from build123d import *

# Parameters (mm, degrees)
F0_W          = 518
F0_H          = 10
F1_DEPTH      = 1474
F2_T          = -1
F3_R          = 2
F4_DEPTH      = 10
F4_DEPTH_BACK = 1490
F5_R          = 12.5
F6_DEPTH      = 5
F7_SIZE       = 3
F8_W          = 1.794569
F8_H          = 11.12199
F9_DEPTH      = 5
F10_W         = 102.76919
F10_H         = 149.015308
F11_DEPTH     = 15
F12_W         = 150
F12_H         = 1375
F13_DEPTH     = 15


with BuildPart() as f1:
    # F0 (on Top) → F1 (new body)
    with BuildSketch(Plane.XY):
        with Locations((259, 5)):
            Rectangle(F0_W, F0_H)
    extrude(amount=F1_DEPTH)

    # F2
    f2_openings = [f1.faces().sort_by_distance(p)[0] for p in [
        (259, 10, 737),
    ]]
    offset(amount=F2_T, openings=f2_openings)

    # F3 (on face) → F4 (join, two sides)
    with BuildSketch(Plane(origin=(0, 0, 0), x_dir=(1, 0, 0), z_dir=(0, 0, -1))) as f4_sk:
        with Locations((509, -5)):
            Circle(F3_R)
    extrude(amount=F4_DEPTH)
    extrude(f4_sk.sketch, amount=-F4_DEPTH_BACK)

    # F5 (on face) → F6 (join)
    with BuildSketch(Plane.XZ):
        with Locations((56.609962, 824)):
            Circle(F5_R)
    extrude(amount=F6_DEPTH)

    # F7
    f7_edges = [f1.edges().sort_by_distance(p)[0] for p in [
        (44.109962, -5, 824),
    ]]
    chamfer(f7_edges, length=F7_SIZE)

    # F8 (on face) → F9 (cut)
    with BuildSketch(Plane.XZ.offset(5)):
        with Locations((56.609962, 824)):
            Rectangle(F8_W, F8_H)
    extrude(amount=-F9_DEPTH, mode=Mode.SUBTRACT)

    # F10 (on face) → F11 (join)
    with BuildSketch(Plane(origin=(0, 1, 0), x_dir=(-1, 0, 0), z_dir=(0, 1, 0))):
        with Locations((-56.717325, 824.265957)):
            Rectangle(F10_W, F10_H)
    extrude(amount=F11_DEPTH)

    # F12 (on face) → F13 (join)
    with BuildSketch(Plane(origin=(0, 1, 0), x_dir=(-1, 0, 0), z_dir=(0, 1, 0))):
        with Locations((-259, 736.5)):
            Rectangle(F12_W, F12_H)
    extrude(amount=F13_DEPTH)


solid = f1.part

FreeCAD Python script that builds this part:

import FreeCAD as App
import Part
import Sketcher
from FreeCAD import Vector


def edges_at(feature, points):
    """Names of the edges that pass closest to the given points."""
    edges = feature.Shape.Edges
    near = lambda p: min(range(len(edges)), key=lambda i: edges[i].distToShape(Part.Vertex(*p))[0])
    return sorted({f"Edge{near(p) + 1}" for p in points})


def faces_at(feature, points):
    """Names of the faces that lie closest to the given points."""
    faces = feature.Shape.Faces
    near = lambda p: min(range(len(faces)), key=lambda i: faces[i].distToShape(Part.Vertex(*p))[0])
    return sorted({f"Face{near(p) + 1}" for p in points})


def add_polygon(sketch, points):
    """Adds a closed chain of lines whose ends are joined by coincident constraints."""
    first, n = sketch.GeometryCount, len(points)
    for a, b in zip(points, points[1:] + points[:1]):
        sketch.addGeometry(Part.LineSegment(App.Vector(*a, 0), App.Vector(*b, 0)), False)
    for i in range(n):
        sketch.addConstraint(Sketcher.Constraint("Coincident", first + i, 2, first + (i + 1) % n, 1))

doc = App.newDocument("Part")
params = doc.addObject("Spreadsheet::Sheet", "Params")
for row, (alias, value) in enumerate([
    ("sketch1_width", "518 mm"),
    ("sketch1_height", "10 mm"),
    ("pad1_length", "1474 mm"),
    ("thickness_wall", "1 mm"),
    ("sketch2_diameter", "4 mm"),
    ("pad2_length", "10 mm"),
    ("pad2_length2", "1490 mm"),
    ("sketch3_diameter", "25 mm"),
    ("pad3_length", "5 mm"),
    ("chamfer_size", "3 mm"),
    ("pocket1_length", "5 mm"),
    ("pad4_length", "15 mm"),
    ("sketch6_width", "150 mm"),
    ("sketch6_height", "1375 mm"),
    ("pad5_length", "15 mm"),
], start=1):
    params.set(f"A{row}", alias)
    params.set(f"B{row}", "=" + value)
    params.setAlias(f"B{row}", alias)

body = doc.addObject("PartDesign::Body", "Body")

sketch1 = body.newObject("Sketcher::SketchObject", "Sketch")
sketch1.AttachmentSupport = (doc.getObject("XY_Plane"), [""])
sketch1.MapMode = "FlatFace"
add_polygon(sketch1, [(0, 10), (0, 0), (518, 0), (518, 10)])
sketch1.addConstraint(Sketcher.Constraint("Vertical", 0))
sketch1.addConstraint(Sketcher.Constraint("Horizontal", 1))
sketch1.addConstraint(Sketcher.Constraint("Vertical", 2))
sketch1.addConstraint(Sketcher.Constraint("Horizontal", 3))
sketch1.addConstraint(Sketcher.Constraint("Coincident", 0, 2, -1, 1))
sketch1.addConstraint(Sketcher.Constraint("DistanceX", 1, 1, 1, 2, 518.0))
sketch1.addConstraint(Sketcher.Constraint("DistanceY", 0, 2, 0, 1, 10.0))
sketch1.setExpression("Constraints[9]", "Params.sketch1_width")
sketch1.setExpression("Constraints[10]", "Params.sketch1_height")
pad1 = body.newObject("PartDesign::Pad", "Pad")
pad1.Profile = sketch1
pad1.setExpression("Length", "Params.pad1_length")
doc.recompute()

thickness = body.newObject("PartDesign::Thickness", "Thickness")
thickness.Base = (pad1, faces_at(pad1, [(259, 10, 737)]))
thickness.setExpression("Value", "Params.thickness_wall")
thickness.Reversed = True
thickness.Join = "Arc"

sketch2 = body.newObject("Sketcher::SketchObject", "Sketch001")
sketch2.AttachmentSupport = (doc.getObject("XY_Plane"), [""])
sketch2.MapMode = "FlatFace"
sketch2.addGeometry(Part.Circle(Vector(509, 5, 0), Vector(0, 0, 1), 2), False)
sketch2.addConstraint(Sketcher.Constraint("Diameter", 0, 4.0))
sketch2.addConstraint(Sketcher.Constraint("DistanceX", -1, 1, 0, 3, 509.0))
sketch2.addConstraint(Sketcher.Constraint("DistanceY", -1, 1, 0, 3, 5.0))
sketch2.setExpression("Constraints[0]", "Params.sketch2_diameter")
pad2 = body.newObject("PartDesign::Pad", "Pad001")
pad2.Profile = sketch2
pad2.Type = "TwoLengths"
pad2.setExpression("Length", "Params.pad2_length")
pad2.setExpression("Length2", "Params.pad2_length2")
pad2.Reversed = True

sketch3 = body.newObject("Sketcher::SketchObject", "Sketch002")
sketch3.AttachmentSupport = (doc.getObject("XZ_Plane"), [""])
sketch3.MapMode = "FlatFace"
sketch3.addGeometry(Part.Circle(Vector(57, 824, 0), Vector(0, 0, 1), 12), False)
sketch3.addConstraint(Sketcher.Constraint("Diameter", 0, 25.0))
sketch3.addConstraint(Sketcher.Constraint("DistanceY", -1, 1, 0, 3, 824.0))
sketch3.addConstraint(Sketcher.Constraint("DistanceX", -1, 1, 0, 3, 56.609962))
sketch3.setExpression("Constraints[0]", "Params.sketch3_diameter")
pad3 = body.newObject("PartDesign::Pad", "Pad002")
pad3.Profile = sketch3
pad3.setExpression("Length", "Params.pad3_length")
doc.recompute()

chamfer = body.newObject("PartDesign::Chamfer", "Chamfer")
chamfer.Base = (pad3, edges_at(pad3, [(44.11, -5, 824)]))
chamfer.setExpression("Size", "Params.chamfer_size")

sketch4 = body.newObject("Sketcher::SketchObject", "Sketch003")
sketch4.AttachmentSupport = (doc.getObject("XZ_Plane"), [""])
sketch4.MapMode = "FlatFace"
sketch4.AttachmentOffset = App.Placement(Vector(0, 0, 5), App.Rotation())
add_polygon(sketch4, [(55.7, 829.6), (55.7, 818.4), (57.5, 818.4), (57.5, 829.6)])
sketch4.addConstraint(Sketcher.Constraint("Vertical", 0))
sketch4.addConstraint(Sketcher.Constraint("Horizontal", 1))
sketch4.addConstraint(Sketcher.Constraint("Vertical", 2))
sketch4.addConstraint(Sketcher.Constraint("Horizontal", 3))
sketch4.addConstraint(Sketcher.Constraint("DistanceX", 1, 1, 1, 2, 1.794569))
sketch4.addConstraint(Sketcher.Constraint("DistanceY", 0, 2, 0, 1, 11.12199))
sketch4.addConstraint(Sketcher.Constraint("DistanceX", -1, 1, 0, 2, 55.712677))
sketch4.addConstraint(Sketcher.Constraint("DistanceY", -1, 1, 0, 2, 818.439005))
pocket1 = body.newObject("PartDesign::Pocket", "Pocket")
pocket1.Profile = sketch4
pocket1.setExpression("Length", "Params.pocket1_length")

sketch5 = body.newObject("Sketcher::SketchObject", "Sketch004")
sketch5.AttachmentSupport = (doc.getObject("XZ_Plane"), [""])
sketch5.MapMode = "FlatFace"
sketch5.AttachmentOffset = App.Placement(Vector(0, 0, -1), App.Rotation())
add_polygon(sketch5, [(108, 899), (108, 750), (5, 750), (5, 899)])
sketch5.addConstraint(Sketcher.Constraint("Vertical", 0))
sketch5.addConstraint(Sketcher.Constraint("Horizontal", 1))
sketch5.addConstraint(Sketcher.Constraint("Vertical", 2))
sketch5.addConstraint(Sketcher.Constraint("Horizontal", 3))
sketch5.addConstraint(Sketcher.Constraint("DistanceX", 1, 2, 1, 1, 102.76919))
sketch5.addConstraint(Sketcher.Constraint("DistanceY", 0, 2, 0, 1, 149.015308))
sketch5.addConstraint(Sketcher.Constraint("DistanceX", -1, 1, 0, 2, 108.10192))
sketch5.addConstraint(Sketcher.Constraint("DistanceY", -1, 1, 2, 2, 898.773611))
pad4 = body.newObject("PartDesign::Pad", "Pad003")
pad4.Profile = sketch5
pad4.setExpression("Length", "Params.pad4_length")
pad4.Reversed = True

sketch6 = body.newObject("Sketcher::SketchObject", "Sketch005")
sketch6.AttachmentSupport = (doc.getObject("XZ_Plane"), [""])
sketch6.MapMode = "FlatFace"
sketch6.AttachmentOffset = App.Placement(Vector(0, 0, -1), App.Rotation())
add_polygon(sketch6, [(334, 1424), (334, 49), (184, 49), (184, 1424)])
sketch6.addConstraint(Sketcher.Constraint("Vertical", 0))
sketch6.addConstraint(Sketcher.Constraint("Horizontal", 1))
sketch6.addConstraint(Sketcher.Constraint("Vertical", 2))
sketch6.addConstraint(Sketcher.Constraint("Horizontal", 3))
sketch6.addConstraint(Sketcher.Constraint("DistanceX", 1, 2, 1, 1, 150.0))
sketch6.addConstraint(Sketcher.Constraint("DistanceY", 0, 2, 0, 1, 1375.0))
sketch6.addConstraint(Sketcher.Constraint("DistanceX", -1, 1, 0, 2, 334.0))
sketch6.addConstraint(Sketcher.Constraint("DistanceY", -1, 1, 0, 2, 49.0))
sketch6.setExpression("Constraints[8]", "Params.sketch6_width")
sketch6.setExpression("Constraints[9]", "Params.sketch6_height")
pad5 = body.newObject("PartDesign::Pad", "Pad004")
pad5.Profile = sketch6
pad5.setExpression("Length", "Params.pad5_length")
pad5.Reversed = True

doc.recompute()
